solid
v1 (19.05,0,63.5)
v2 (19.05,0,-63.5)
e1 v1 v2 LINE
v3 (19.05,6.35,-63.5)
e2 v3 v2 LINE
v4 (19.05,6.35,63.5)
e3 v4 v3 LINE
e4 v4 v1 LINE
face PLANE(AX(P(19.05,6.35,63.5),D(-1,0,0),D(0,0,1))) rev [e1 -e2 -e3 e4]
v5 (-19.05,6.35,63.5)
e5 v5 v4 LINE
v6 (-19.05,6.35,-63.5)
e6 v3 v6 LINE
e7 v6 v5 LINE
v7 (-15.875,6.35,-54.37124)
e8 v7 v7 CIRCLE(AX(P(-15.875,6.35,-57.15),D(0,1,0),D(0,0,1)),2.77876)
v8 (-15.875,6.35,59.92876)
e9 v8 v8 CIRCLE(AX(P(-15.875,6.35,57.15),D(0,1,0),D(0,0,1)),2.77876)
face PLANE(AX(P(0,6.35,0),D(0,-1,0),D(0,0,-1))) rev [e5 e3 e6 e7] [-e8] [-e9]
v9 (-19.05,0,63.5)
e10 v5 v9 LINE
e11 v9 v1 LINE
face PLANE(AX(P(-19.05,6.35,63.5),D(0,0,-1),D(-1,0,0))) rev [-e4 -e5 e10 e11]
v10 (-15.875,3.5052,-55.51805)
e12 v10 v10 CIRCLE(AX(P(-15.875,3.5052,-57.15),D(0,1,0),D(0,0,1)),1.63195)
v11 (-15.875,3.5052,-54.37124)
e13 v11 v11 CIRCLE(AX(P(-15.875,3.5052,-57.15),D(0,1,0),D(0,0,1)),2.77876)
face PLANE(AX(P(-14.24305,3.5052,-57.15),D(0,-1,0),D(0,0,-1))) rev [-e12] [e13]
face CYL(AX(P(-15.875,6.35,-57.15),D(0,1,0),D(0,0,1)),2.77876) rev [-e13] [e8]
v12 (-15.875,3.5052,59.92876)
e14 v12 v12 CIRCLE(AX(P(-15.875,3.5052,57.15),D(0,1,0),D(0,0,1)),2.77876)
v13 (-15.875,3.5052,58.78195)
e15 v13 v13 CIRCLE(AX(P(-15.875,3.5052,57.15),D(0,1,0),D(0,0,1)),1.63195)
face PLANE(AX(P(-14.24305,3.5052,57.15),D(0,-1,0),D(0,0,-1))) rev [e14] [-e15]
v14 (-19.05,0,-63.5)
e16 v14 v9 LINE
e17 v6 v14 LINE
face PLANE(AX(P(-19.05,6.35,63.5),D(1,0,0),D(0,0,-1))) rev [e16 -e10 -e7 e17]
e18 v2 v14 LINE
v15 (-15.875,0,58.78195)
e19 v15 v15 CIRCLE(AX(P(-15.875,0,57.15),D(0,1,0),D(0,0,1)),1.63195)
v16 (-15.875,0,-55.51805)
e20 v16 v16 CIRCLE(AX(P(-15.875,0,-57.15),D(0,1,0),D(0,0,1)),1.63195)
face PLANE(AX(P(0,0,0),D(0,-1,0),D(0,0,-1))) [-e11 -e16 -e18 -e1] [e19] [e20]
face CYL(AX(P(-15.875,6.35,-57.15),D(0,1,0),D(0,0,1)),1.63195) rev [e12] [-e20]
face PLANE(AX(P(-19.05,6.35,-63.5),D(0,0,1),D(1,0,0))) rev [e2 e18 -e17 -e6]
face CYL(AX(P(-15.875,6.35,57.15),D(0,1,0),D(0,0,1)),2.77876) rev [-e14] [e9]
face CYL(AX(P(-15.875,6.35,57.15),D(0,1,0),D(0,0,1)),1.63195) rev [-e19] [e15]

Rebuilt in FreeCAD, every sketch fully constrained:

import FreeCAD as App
import Part
import Sketcher
Q = App.Units.Quantity

doc = App.newDocument("Part")
params = doc.addObject("Spreadsheet::Sheet", "Params")
for row, (alias, value) in enumerate([
    ("sketch1_height", "5 in"),
    ("sketch1_width", "1.5 in"),
    ("pad1_length", "0.25 in"),
    ("hole_diameter", "0.1285 in"),
    ("hole_cbore_diameter", "0.2188 in"),
    ("hole_cbore_depth", "0.112 in"),
], start=1):
    params.set(f"A{row}", alias)
    params.set(f"B{row}", "=" + value)
    params.setAlias(f"B{row}", alias)

body = doc.addObject("PartDesign::Body", "Body")

# Sketch on XZ plane
sketch1 = doc.addObject("Sketcher::SketchObject", "Sketch")
body.addObject(sketch1)
sketch1.AttachmentSupport = (doc.XZ_Plane, [""])
sketch1.MapMode = "FlatFace"
sketch1.addGeometry(Part.LineSegment(App.Vector(-19.05, -63.5, 0), App.Vector(-19.05, 63.5, 0)), False)
sketch1.addGeometry(Part.LineSegment(App.Vector(-19.05, 63.5, 0), App.Vector(19.05, 63.5, 0)), False)
sketch1.addGeometry(Part.LineSegment(App.Vector(19.05, 63.5, 0), App.Vector(19.05, -63.5, 0)), False)
sketch1.addGeometry(Part.LineSegment(App.Vector(19.05, -63.5, 0), App.Vector(-19.05, -63.5, 0)), False)
sketch1.addConstraint(Sketcher.Constraint("Coincident", 0, 2, 1, 1))
sketch1.addConstraint(Sketcher.Constraint("Coincident", 1, 2, 2, 1))
sketch1.addConstraint(Sketcher.Constraint("Coincident", 2, 2, 3, 1))
sketch1.addConstraint(Sketcher.Constraint("Coincident", 3, 2, 0, 1))
sketch1.addConstraint(Sketcher.Constraint("Vertical", 0))
sketch1.addConstraint(Sketcher.Constraint("Horizontal", 1))
sketch1.addConstraint(Sketcher.Constraint("Vertical", 2))
sketch1.addConstraint(Sketcher.Constraint("Horizontal", 3))
sketch1.addConstraint(Sketcher.Constraint("Symmetric", 0, 2, 2, 2, -1, 1))
sketch1.addConstraint(Sketcher.Constraint("DistanceY", 0, 1, 0, 2, Q("5 in")))
sketch1.addConstraint(Sketcher.Constraint("DistanceX", 1, 1, 1, 2, Q("1.5 in")))
sketch1.setExpression("Constraints[9]", "Params.sketch1_height")
sketch1.setExpression("Constraints[10]", "Params.sketch1_width")
pad1 = doc.addObject("PartDesign::Pad", "Pad")
body.addObject(pad1)
pad1.Profile = sketch1
pad1.setExpression("Length", "Params.pad1_length")
pad1.Reversed = True

# Sketch on XZ plane
sketch2 = doc.addObject("Sketcher::SketchObject", "Sketch001")
body.addObject(sketch2)
sketch2.AttachmentSupport = (doc.XZ_Plane, [""])
sketch2.MapMode = "FlatFace"
sketch2.AttachmentOffset = App.Placement(App.Vector(0, 0, -0.25 * 25.4), App.Rotation())
sketch2.addGeometry(Part.Circle(App.Vector(-15.875, 57.15, 0), App.Vector(0, 0, 1), 1.63195), False)
sketch2.addGeometry(Part.Circle(App.Vector(-15.875, -57.15, 0), App.Vector(0, 0, 1), 1.63195), False)
sketch2.addConstraint(Sketcher.Constraint("Equal", 0, 1))
sketch2.addConstraint(Sketcher.Constraint("Symmetric", 0, 3, 1, 3, -1))
sketch2.addConstraint(Sketcher.Constraint("Diameter", 0, Q("0.1285 in")))
sketch2.addConstraint(Sketcher.Constraint("DistanceY", 1, 3, 0, 3, Q("4.5 in")))
sketch2.addConstraint(Sketcher.Constraint("DistanceX", 0, 3, -1, 1, Q("0.625 in")))
doc.recompute()
hole = doc.addObject("PartDesign::Hole", "Hole")
body.addObject(hole)
hole.Profile = sketch2
hole.ThreadType = "None"
hole.setExpression("Diameter", "Params.hole_diameter")
hole.DepthType = "ThroughAll"
hole.HoleCutType = "Counterbore"
hole.setExpression("HoleCutDiameter", "Params.hole_cbore_diameter")
hole.setExpression("HoleCutDepth", "Params.hole_cbore_depth")
hole.Reversed = True

doc.recompute()
